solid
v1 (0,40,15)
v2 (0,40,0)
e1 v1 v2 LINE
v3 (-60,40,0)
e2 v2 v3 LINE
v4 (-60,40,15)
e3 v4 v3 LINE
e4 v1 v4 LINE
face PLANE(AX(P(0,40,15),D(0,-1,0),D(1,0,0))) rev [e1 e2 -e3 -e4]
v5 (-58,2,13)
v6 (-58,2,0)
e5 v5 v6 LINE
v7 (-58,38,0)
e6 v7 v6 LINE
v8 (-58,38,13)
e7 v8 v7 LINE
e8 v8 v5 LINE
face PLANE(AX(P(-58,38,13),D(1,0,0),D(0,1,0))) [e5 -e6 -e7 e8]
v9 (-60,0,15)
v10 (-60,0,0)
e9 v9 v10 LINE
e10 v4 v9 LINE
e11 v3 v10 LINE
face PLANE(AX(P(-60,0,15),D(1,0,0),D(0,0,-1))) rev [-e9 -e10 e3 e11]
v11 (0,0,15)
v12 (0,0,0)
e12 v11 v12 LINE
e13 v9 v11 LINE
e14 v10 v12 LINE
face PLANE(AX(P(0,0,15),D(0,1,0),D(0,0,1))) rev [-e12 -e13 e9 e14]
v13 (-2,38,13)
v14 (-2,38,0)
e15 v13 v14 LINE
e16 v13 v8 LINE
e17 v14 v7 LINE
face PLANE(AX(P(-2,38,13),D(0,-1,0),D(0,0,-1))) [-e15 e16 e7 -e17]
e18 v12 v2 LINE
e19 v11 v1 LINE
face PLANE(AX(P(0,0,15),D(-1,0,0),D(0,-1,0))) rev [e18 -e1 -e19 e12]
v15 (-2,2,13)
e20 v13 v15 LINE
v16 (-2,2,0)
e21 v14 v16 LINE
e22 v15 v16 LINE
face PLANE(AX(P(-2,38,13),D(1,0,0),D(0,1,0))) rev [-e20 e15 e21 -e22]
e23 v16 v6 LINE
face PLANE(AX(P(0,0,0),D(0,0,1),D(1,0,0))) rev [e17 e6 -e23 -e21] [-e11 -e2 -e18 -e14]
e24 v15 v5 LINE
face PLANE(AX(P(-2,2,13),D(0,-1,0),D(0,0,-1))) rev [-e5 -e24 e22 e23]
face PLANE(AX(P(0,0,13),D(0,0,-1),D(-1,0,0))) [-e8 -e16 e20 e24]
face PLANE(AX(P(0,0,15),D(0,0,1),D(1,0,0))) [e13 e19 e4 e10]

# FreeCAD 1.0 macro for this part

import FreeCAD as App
import Part
import Sketcher

V = App.Vector


def add_polygon(sketch, points):
    """Adds a closed chain of lines whose ends are joined by coincident constraints."""
    first, n = sketch.GeometryCount, len(points)
    for a, b in zip(points, points[1:] + points[:1]):
        sketch.addGeometry(Part.LineSegment(App.Vector(*a, 0), App.Vector(*b, 0)), False)
    for i in range(n):
        sketch.addConstraint(Sketcher.Constraint("Coincident", first + i, 2, first + (i + 1) % n, 1))

doc = App.newDocument("Part")
body = doc.addObject("PartDesign::Body", "Body")

sketch1 = body.newObject("Sketcher::SketchObject", "Sketch")
sketch1.AttachmentSupport = (doc.getObject("XY_Plane"), [""])
sketch1.MapMode = "FlatFace"
add_polygon(sketch1, [(-60, 40), (-60, 0), (0, 0), (0, 40)])
sketch1.addConstraint(Sketcher.Constraint("Vertical", 0))
sketch1.addConstraint(Sketcher.Constraint("Horizontal", 1))
sketch1.addConstraint(Sketcher.Constraint("Vertical", 2))
sketch1.addConstraint(Sketcher.Constraint("Horizontal", 3))
sketch1.addConstraint(Sketcher.Constraint("Coincident", 1, 2, -1, 1))
sketch1.addConstraint(Sketcher.Constraint("DistanceX", 1, 1, 1, 2, 60.0))
sketch1.addConstraint(Sketcher.Constraint("DistanceY", 0, 2, 0, 1, 40.0))
pad1 = body.newObject("PartDesign::Pad", "Pad")
pad1.Profile = sketch1
pad1.Length = 15

sketch2 = body.newObject("Sketcher::SketchObject", "Sketch001")
sketch2.AttachmentSupport = (doc.getObject("XY_Plane"), [""])
sketch2.MapMode = "FlatFace"
add_polygon(sketch2, [(-2, 38), (-2, 2), (-58, 2), (-58, 38)])
sketch2.addConstraint(Sketcher.Constraint("Vertical", 0))
sketch2.addConstraint(Sketcher.Constraint("Horizontal", 1))
sketch2.addConstraint(Sketcher.Constraint("Vertical", 2))
sketch2.addConstraint(Sketcher.Constraint("Horizontal", 3))
sketch2.addConstraint(Sketcher.Constraint("DistanceX", 1, 2, 1, 1, 56.0))
sketch2.addConstraint(Sketcher.Constraint("DistanceY", 0, 2, 0, 1, 36.0))
sketch2.addConstraint(Sketcher.Constraint("DistanceX", 0, 2, -1, 1, 2.0))
sketch2.addConstraint(Sketcher.Constraint("DistanceY", -1, 1, 0, 2, 2.0))
pocket1 = body.newObject("PartDesign::Pocket", "Pocket")
pocket1.Profile = sketch2
pocket1.Length = 13
pocket1.Reversed = True

doc.recompute()
